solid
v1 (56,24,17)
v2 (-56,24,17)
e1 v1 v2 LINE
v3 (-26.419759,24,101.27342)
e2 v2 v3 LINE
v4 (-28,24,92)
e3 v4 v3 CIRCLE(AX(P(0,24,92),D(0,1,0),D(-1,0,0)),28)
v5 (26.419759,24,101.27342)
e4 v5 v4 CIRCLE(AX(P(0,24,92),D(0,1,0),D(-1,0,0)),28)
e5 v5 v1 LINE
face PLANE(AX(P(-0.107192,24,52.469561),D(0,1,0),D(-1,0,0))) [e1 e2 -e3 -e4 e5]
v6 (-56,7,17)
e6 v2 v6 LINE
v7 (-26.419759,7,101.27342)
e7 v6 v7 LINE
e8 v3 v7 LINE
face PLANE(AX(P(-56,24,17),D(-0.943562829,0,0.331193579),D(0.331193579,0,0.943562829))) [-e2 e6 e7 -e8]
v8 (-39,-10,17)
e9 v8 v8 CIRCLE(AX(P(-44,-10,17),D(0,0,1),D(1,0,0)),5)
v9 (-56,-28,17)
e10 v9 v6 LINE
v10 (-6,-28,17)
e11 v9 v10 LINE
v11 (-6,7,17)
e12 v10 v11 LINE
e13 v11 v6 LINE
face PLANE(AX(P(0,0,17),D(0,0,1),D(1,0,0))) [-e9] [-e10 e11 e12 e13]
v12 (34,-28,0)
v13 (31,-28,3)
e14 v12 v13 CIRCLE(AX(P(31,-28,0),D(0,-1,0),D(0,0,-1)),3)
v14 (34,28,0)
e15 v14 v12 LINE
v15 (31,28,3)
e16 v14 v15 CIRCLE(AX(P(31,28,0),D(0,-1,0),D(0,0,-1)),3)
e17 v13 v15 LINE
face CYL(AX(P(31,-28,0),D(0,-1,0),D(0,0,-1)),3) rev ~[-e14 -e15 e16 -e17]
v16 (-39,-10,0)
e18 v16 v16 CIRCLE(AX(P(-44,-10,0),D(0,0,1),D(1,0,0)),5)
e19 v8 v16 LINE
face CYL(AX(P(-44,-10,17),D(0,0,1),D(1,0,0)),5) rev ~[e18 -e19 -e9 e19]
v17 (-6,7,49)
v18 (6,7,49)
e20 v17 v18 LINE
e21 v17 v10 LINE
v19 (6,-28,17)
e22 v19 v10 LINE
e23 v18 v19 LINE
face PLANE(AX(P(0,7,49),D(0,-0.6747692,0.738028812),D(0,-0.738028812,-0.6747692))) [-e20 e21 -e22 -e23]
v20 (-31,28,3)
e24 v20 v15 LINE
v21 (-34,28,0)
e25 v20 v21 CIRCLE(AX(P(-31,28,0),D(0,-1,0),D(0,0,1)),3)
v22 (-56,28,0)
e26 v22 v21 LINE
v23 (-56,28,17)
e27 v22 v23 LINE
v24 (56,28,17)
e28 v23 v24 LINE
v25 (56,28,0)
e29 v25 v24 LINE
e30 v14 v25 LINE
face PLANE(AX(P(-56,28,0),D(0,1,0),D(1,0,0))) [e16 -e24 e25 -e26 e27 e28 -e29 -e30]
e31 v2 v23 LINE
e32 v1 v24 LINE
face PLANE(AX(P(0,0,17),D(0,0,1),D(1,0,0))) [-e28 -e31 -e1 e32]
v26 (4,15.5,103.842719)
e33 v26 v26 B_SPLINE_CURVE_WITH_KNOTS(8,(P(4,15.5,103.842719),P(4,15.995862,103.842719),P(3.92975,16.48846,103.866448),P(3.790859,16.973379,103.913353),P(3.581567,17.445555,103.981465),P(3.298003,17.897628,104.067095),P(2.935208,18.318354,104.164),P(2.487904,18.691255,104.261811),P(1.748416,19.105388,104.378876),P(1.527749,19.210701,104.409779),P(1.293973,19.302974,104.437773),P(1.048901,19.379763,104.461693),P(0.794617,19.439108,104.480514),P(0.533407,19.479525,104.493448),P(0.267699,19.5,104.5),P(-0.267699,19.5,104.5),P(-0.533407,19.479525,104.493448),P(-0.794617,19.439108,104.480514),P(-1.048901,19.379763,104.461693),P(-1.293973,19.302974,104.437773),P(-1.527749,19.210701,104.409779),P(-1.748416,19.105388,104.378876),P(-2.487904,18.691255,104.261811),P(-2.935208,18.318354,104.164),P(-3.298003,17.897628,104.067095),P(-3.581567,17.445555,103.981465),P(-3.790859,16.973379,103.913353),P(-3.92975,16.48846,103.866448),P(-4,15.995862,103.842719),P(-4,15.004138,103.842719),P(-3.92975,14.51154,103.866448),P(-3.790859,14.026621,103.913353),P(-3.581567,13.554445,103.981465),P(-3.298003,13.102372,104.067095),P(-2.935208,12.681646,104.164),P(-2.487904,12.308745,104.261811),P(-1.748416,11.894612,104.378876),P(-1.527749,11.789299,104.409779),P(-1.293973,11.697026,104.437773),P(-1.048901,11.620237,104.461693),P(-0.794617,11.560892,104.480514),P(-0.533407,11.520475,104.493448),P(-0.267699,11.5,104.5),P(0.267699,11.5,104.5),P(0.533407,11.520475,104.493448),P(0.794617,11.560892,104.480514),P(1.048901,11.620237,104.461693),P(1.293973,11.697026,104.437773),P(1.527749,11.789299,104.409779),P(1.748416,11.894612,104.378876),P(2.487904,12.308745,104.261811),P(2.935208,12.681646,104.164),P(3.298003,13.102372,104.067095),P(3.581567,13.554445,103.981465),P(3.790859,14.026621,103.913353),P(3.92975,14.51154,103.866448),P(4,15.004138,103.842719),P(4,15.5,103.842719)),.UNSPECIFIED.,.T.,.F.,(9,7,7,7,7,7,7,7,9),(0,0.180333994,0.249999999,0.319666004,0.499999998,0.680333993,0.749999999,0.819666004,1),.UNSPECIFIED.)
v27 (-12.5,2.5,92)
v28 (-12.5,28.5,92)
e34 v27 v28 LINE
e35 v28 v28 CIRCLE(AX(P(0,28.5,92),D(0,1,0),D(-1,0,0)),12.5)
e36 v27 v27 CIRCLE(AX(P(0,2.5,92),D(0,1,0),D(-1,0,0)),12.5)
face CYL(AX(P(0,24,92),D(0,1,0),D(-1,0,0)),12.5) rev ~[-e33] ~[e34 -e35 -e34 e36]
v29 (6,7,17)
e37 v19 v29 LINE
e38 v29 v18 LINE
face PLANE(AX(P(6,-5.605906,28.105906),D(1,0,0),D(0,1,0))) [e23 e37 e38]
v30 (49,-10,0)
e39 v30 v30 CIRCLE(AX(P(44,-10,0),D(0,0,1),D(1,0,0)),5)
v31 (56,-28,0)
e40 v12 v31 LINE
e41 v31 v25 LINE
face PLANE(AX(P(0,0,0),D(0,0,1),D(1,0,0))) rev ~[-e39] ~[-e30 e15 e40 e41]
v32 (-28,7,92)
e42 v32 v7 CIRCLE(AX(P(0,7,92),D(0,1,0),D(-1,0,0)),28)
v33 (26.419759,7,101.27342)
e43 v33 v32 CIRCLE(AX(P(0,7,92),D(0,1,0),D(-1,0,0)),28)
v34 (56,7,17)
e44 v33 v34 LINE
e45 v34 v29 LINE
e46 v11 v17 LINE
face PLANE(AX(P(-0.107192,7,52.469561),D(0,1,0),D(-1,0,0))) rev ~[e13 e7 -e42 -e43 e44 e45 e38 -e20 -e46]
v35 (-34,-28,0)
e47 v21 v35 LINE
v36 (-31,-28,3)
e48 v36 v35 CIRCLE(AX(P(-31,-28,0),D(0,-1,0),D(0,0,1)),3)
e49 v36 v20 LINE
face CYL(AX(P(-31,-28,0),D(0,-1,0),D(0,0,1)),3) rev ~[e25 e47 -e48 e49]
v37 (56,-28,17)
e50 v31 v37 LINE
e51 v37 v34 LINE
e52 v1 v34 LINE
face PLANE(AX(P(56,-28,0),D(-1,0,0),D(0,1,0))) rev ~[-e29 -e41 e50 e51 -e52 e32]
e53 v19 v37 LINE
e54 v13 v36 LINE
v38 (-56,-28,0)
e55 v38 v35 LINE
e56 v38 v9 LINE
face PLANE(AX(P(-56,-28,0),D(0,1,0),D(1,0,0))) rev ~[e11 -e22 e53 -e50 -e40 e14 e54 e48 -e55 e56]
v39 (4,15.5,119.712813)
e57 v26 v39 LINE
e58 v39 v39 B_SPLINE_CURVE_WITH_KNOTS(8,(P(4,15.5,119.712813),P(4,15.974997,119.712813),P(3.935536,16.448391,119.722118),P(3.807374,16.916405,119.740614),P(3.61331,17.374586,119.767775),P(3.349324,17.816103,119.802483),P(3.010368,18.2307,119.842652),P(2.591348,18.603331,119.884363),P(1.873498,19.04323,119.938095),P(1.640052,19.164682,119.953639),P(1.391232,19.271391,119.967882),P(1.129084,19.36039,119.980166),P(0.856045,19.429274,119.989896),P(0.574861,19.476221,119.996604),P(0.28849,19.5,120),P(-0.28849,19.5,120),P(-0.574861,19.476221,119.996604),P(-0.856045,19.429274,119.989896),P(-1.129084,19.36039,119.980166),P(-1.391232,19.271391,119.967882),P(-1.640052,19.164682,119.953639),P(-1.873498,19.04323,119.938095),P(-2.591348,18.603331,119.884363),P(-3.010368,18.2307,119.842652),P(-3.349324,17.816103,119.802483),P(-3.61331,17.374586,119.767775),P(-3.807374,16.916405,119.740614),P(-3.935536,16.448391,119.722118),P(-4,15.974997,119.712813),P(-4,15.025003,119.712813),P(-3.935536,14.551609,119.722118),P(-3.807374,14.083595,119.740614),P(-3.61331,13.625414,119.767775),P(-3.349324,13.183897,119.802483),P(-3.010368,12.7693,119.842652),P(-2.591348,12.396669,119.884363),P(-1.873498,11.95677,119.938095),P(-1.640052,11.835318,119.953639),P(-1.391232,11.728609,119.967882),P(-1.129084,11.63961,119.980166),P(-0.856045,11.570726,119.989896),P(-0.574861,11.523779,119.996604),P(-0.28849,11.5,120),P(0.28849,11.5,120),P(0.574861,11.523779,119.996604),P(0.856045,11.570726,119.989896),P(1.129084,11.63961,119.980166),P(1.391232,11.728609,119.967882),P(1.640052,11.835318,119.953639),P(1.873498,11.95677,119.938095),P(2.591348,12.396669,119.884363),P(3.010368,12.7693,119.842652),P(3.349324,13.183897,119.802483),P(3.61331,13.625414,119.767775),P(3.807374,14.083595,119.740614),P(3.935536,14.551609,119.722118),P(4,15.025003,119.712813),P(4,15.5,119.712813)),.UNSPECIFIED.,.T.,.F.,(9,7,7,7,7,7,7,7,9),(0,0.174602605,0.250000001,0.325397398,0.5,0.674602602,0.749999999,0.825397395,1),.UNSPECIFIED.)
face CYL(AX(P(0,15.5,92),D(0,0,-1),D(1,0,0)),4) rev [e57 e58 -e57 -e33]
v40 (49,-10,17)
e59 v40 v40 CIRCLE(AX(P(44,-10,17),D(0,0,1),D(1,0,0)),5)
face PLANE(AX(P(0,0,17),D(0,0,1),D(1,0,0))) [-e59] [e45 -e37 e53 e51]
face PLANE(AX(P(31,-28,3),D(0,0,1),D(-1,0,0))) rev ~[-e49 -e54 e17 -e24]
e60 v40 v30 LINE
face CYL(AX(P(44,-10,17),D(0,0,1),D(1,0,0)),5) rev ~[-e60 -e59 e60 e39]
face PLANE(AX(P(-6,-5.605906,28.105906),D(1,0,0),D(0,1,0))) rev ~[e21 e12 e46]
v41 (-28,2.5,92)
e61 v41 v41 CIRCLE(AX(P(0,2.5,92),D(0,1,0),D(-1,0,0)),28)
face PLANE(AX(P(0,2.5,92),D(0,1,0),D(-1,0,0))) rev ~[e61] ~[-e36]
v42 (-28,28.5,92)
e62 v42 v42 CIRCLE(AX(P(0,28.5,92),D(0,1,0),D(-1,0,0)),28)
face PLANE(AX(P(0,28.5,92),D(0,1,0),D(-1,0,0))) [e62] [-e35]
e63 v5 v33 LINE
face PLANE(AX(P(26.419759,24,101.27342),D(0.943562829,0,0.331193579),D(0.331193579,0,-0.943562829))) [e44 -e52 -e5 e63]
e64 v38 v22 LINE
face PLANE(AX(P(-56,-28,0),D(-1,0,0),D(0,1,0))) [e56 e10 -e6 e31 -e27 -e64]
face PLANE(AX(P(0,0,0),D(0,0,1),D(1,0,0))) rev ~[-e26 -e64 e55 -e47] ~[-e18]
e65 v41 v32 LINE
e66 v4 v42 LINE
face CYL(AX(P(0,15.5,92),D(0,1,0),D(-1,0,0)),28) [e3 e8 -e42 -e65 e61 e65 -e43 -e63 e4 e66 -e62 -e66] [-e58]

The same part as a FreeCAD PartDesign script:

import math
import FreeCAD as App
import Part
import Sketcher
Q = App.Units.Quantity


def add_polygon(sketch, points):
    """Adds a closed chain of lines whose ends are joined by coincident constraints."""
    first, n = sketch.GeometryCount, len(points)
    for a, b in zip(points, points[1:] + points[:1]):
        sketch.addGeometry(Part.LineSegment(App.Vector(*a, 0), App.Vector(*b, 0)), False)
    for i in range(n):
        sketch.addConstraint(Sketcher.Constraint("Coincident", first + i, 2, first + (i + 1) % n, 1))

doc = App.newDocument("Part")
params = doc.addObject("Spreadsheet::Sheet", "Params")
for row, (alias, value) in enumerate([
    ("sketch1_width", "112 mm"),
    ("sketch1_height", "56 mm"),
    ("pad1_length", "17 mm"),
    ("sketch2_diameter", "25 mm"),
    ("sketch2_radius", "28 mm"),
    ("sketch2_width", "112 mm"),
    ("pad2_length", "17 mm"),
    ("sketch3_diameter", "56 mm"),
    ("pad3_length", "26 mm"),
    ("sketch4_diameter", "25 mm"),
    ("pocket1_length", "50 mm"),
    ("sketch5_diameter", "8 mm"),
    ("sketch6_diameter", "10 mm"),
    ("sketch7_width", "35 mm"),
    ("sketch7_height", "32 mm"),
    ("pad4_length", "12 mm"),
    ("sketch8_radius", "3 mm"),
    ("sketch8_width", "62 mm"),
], start=1):
    params.set(f"A{row}", alias)
    params.set(f"B{row}", "=" + value)
    params.setAlias(f"B{row}", alias)

body = doc.addObject("PartDesign::Body", "Body")

sketch1 = doc.addObject("Sketcher::SketchObject", "Sketch")
body.addObject(sketch1)
sketch1.AttachmentSupport = (doc.XY_Plane, [""])
sketch1.MapMode = "FlatFace"
add_polygon(sketch1, [(-56, 28), (-56, -28), (56, -28), (56, 28)])
sketch1.addConstraint([
    Sketcher.Constraint("Vertical", 0),
    Sketcher.Constraint("Horizontal", 1),
    Sketcher.Constraint("Vertical", 2),
    Sketcher.Constraint("Horizontal", 3),
    Sketcher.Constraint("Symmetric", 0, 2, 2, 2, -1, 1),
    Sketcher.Constraint("DistanceX", 1, 1, 1, 2, Q("112 mm")),
    Sketcher.Constraint("DistanceY", 0, 2, 0, 1, Q("56 mm")),
])
sketch1.setExpression("Constraints[9]", "Params.sketch1_width")
sketch1.setExpression("Constraints[10]", "Params.sketch1_height")
pad1 = doc.addObject("PartDesign::Pad", "Pad")
body.addObject(pad1)
pad1.Profile = sketch1
pad1.setExpression("Length", "Params.pad1_length")

sketch2 = doc.addObject("Sketcher::SketchObject", "Sketch001")
body.addObject(sketch2)
sketch2.AttachmentSupport = (doc.XZ_Plane, [""])
sketch2.MapMode = "FlatFace"
sketch2.AttachmentOffset = App.Placement(App.Vector(0, 0, -24), App.Rotation())
sketch2.addGeometry([
    Part.LineSegment(App.Vector(26, 101, 0), App.Vector(56, 17, 0)),
    Part.LineSegment(App.Vector(56, 17, 0), App.Vector(-56, 17, 0)),
    Part.LineSegment(App.Vector(-56, 17, 0), App.Vector(-26, 101, 0)),
    Part.ArcOfCircle(Part.Circle(App.Vector(0, 92, 0), App.Vector(0, 0, 1), 28), math.radians(19), math.radians(161)),
    Part.Circle(App.Vector(0, 92, 0), App.Vector(0, 0, 1), 12),
], False)
sketch2.addConstraint([
    Sketcher.Constraint("Coincident", 0, 2, 1, 1),
    Sketcher.Constraint("Coincident", 1, 2, 2, 1),
    Sketcher.Constraint("Tangent", 2, 2, 3, 2),
    Sketcher.Constraint("Tangent", 3, 1, 0, 1),
    Sketcher.Constraint("Horizontal", 1),
    Sketcher.Constraint("Coincident", 4, 3, 3, 3),
    Sketcher.Constraint("Symmetric", 2, 2, 3, 1, -2),
    Sketcher.Constraint("Diameter", 4, Q("25 mm")),
    Sketcher.Constraint("Radius", 3, Q("28 mm")),
    Sketcher.Constraint("DistanceX", 1, 2, 1, 1, Q("112 mm")),
    Sketcher.Constraint("DistanceY", -1, 1, 3, 3, Q("92 mm")),
    Sketcher.Constraint("DistanceY", -1, 1, 0, 2, Q("17 mm")),
])
sketch2.setExpression("Constraints[7]", "Params.sketch2_diameter")
sketch2.setExpression("Constraints[8]", "Params.sketch2_radius")
sketch2.setExpression("Constraints[9]", "Params.sketch2_width")
pad2 = doc.addObject("PartDesign::Pad", "Pad001")
body.addObject(pad2)
pad2.Profile = sketch2
pad2.setExpression("Length", "Params.pad2_length")

sketch3 = doc.addObject("Sketcher::SketchObject", "Sketch002")
body.addObject(sketch3)
sketch3.AttachmentSupport = (doc.XZ_Plane, [""])
sketch3.MapMode = "FlatFace"
sketch3.AttachmentOffset = App.Placement(App.Vector(0, 0, -15.5), App.Rotation())
sketch3.addGeometry(Part.Circle(App.Vector(0, 92, 0), App.Vector(0, 0, 1), 28), False)
sketch3.addConstraint([
    Sketcher.Constraint("PointOnObject", 0, 3, -2),
    Sketcher.Constraint("Diameter", 0, Q("56 mm")),
    Sketcher.Constraint("DistanceY", -1, 1, 0, 3, Q("92 mm")),
])
sketch3.setExpression("Constraints[1]", "Params.sketch3_diameter")
pad3 = doc.addObject("PartDesign::Pad", "Pad002")
body.addObject(pad3)
pad3.Profile = sketch3
pad3.setExpression("Length", "Params.pad3_length")
pad3.Midplane = True

sketch4 = doc.addObject("Sketcher::SketchObject", "Sketch003")
body.addObject(sketch4)
sketch4.AttachmentSupport = (doc.XZ_Plane, [""])
sketch4.MapMode = "FlatFace"
sketch4.AttachmentOffset = App.Placement(App.Vector(0, 0, -24), App.Rotation())
sketch4.addGeometry(Part.Circle(App.Vector(0, 92, 0), App.Vector(0, 0, 1), 12), False)
sketch4.addConstraint([
    Sketcher.Constraint("PointOnObject", 0, 3, -2),
    Sketcher.Constraint("Diameter", 0, Q("25 mm")),
    Sketcher.Constraint("DistanceY", -1, 1, 0, 3, Q("92 mm")),
])
sketch4.setExpression("Constraints[1]", "Params.sketch4_diameter")
pocket1 = doc.addObject("PartDesign::Pocket", "Pocket")
body.addObject(pocket1)
pocket1.Profile = sketch4
pocket1.setExpression("Length", "Params.pocket1_length")
pocket1.Midplane = True

sketch5 = doc.addObject("Sketcher::SketchObject", "Sketch004")
body.addObject(sketch5)
sketch5.AttachmentSupport = (doc.XY_Plane, [""])
sketch5.MapMode = "FlatFace"
sketch5.AttachmentOffset = App.Placement(App.Vector(0, 0, 92), App.Rotation())
sketch5.addGeometry(Part.Circle(App.Vector(0, 15.5, 0), App.Vector(0, 0, 1), 4), False)
sketch5.addConstraint([
    Sketcher.Constraint("PointOnObject", 0, 3, -2),
    Sketcher.Constraint("Diameter", 0, Q("8 mm")),
    Sketcher.Constraint("DistanceY", -1, 1, 0, 3, Q("15.5 mm")),
])
sketch5.setExpression("Constraints[1]", "Params.sketch5_diameter")
pocket2 = doc.addObject("PartDesign::Pocket", "Pocket001")
body.addObject(pocket2)
pocket2.Profile = sketch5
pocket2.Type = "ThroughAll"
pocket2.Reversed = True

sketch6 = doc.addObject("Sketcher::SketchObject", "Sketch005")
body.addObject(sketch6)
sketch6.AttachmentSupport = (doc.XY_Plane, [""])
sketch6.MapMode = "FlatFace"
sketch6.AttachmentOffset = App.Placement(App.Vector(0, 0, 17), App.Rotation())
sketch6.addGeometry([
    Part.Circle(App.Vector(-44, -10, 0), App.Vector(0, 0, 1), 5),
    Part.Circle(App.Vector(44, -10, 0), App.Vector(0, 0, 1), 5),
], False)
sketch6.addConstraint([
    Sketcher.Constraint("Equal", 0, 1),
    Sketcher.Constraint("Symmetric", 0, 3, 1, 3, -2),
    Sketcher.Constraint("Diameter", 0, Q("10 mm")),
    Sketcher.Constraint("DistanceX", 0, 3, -1, 1, Q("44 mm")),
    Sketcher.Constraint("DistanceY", 0, 3, -1, 1, Q("10 mm")),
])
sketch6.setExpression("Constraints[2]", "Params.sketch6_diameter")
pocket3 = doc.addObject("PartDesign::Pocket", "Pocket002")
body.addObject(pocket3)
pocket3.Profile = sketch6
pocket3.Type = "ThroughAll"

sketch7 = doc.addObject("Sketcher::SketchObject", "Sketch006")
body.addObject(sketch7)
sketch7.AttachmentSupport = (doc.YZ_Plane, [""])
sketch7.MapMode = "FlatFace"
add_polygon(sketch7, [(7, 17), (7, 49), (-28, 17)])
sketch7.addConstraint([
    Sketcher.Constraint("Vertical", 0),
    Sketcher.Constraint("Horizontal", 2),
    Sketcher.Constraint("DistanceX", 2, 1, 2, 2, Q("35 mm")),
    Sketcher.Constraint("DistanceY", 0, 1, 0, 2, Q("32 mm")),
    Sketcher.Constraint("DistanceX", -1, 1, 0, 2, Q("7 mm")),
    Sketcher.Constraint("DistanceY", -1, 1, 0, 2, Q("49 mm")),
])
sketch7.setExpression("Constraints[5]", "Params.sketch7_width")
sketch7.setExpression("Constraints[6]", "Params.sketch7_height")
pad4 = doc.addObject("PartDesign::Pad", "Pad003")
body.addObject(pad4)
pad4.Profile = sketch7
pad4.setExpression("Length", "Params.pad4_length")
pad4.Midplane = True

sketch8 = doc.addObject("Sketcher::SketchObject", "Sketch007")
body.addObject(sketch8)
sketch8.AttachmentSupport = (doc.XZ_Plane, [""])
sketch8.MapMode = "FlatFace"
sketch8.AttachmentOffset = App.Placement(App.Vector(0, 0, 28), App.Rotation())
sketch8.addGeometry([
    Part.LineSegment(App.Vector(31, 3, 0), App.Vector(-31, 3, 0)),
    Part.ArcOfCircle(Part.Circle(App.Vector(-31, 0, 0), App.Vector(0, 0, 1), 3), math.radians(90), math.radians(270)),
    Part.LineSegment(App.Vector(-31, -3, 0), App.Vector(31, -3, 0)),
    Part.ArcOfCircle(Part.Circle(App.Vector(31, 0, 0), App.Vector(0, 0, 1), 3), math.radians(-90), math.radians(90)),
], False)
sketch8.addConstraint([
    Sketcher.Constraint("Tangent", 0, 2, 1, 1),
    Sketcher.Constraint("Tangent", 1, 2, 2, 1),
    Sketcher.Constraint("Tangent", 2, 2, 3, 1),
    Sketcher.Constraint("Tangent", 3, 2, 0, 1),
    Sketcher.Constraint("Horizontal", 0),
    Sketcher.Constraint("Horizontal", 2),
    Sketcher.Constraint("Symmetric", 1, 3, 3, 3, -1, 1),
    Sketcher.Constraint("Radius", 1, Q("3 mm")),
    Sketcher.Constraint("DistanceX", 0, 2, 0, 1, Q("62 mm")),
])
sketch8.setExpression("Constraints[7]", "Params.sketch8_radius")
sketch8.setExpression("Constraints[8]", "Params.sketch8_width")
pocket4 = doc.addObject("PartDesign::Pocket", "Pocket003")
body.addObject(pocket4)
pocket4.Profile = sketch8
pocket4.Type = "ThroughAll"

doc.recompute()
